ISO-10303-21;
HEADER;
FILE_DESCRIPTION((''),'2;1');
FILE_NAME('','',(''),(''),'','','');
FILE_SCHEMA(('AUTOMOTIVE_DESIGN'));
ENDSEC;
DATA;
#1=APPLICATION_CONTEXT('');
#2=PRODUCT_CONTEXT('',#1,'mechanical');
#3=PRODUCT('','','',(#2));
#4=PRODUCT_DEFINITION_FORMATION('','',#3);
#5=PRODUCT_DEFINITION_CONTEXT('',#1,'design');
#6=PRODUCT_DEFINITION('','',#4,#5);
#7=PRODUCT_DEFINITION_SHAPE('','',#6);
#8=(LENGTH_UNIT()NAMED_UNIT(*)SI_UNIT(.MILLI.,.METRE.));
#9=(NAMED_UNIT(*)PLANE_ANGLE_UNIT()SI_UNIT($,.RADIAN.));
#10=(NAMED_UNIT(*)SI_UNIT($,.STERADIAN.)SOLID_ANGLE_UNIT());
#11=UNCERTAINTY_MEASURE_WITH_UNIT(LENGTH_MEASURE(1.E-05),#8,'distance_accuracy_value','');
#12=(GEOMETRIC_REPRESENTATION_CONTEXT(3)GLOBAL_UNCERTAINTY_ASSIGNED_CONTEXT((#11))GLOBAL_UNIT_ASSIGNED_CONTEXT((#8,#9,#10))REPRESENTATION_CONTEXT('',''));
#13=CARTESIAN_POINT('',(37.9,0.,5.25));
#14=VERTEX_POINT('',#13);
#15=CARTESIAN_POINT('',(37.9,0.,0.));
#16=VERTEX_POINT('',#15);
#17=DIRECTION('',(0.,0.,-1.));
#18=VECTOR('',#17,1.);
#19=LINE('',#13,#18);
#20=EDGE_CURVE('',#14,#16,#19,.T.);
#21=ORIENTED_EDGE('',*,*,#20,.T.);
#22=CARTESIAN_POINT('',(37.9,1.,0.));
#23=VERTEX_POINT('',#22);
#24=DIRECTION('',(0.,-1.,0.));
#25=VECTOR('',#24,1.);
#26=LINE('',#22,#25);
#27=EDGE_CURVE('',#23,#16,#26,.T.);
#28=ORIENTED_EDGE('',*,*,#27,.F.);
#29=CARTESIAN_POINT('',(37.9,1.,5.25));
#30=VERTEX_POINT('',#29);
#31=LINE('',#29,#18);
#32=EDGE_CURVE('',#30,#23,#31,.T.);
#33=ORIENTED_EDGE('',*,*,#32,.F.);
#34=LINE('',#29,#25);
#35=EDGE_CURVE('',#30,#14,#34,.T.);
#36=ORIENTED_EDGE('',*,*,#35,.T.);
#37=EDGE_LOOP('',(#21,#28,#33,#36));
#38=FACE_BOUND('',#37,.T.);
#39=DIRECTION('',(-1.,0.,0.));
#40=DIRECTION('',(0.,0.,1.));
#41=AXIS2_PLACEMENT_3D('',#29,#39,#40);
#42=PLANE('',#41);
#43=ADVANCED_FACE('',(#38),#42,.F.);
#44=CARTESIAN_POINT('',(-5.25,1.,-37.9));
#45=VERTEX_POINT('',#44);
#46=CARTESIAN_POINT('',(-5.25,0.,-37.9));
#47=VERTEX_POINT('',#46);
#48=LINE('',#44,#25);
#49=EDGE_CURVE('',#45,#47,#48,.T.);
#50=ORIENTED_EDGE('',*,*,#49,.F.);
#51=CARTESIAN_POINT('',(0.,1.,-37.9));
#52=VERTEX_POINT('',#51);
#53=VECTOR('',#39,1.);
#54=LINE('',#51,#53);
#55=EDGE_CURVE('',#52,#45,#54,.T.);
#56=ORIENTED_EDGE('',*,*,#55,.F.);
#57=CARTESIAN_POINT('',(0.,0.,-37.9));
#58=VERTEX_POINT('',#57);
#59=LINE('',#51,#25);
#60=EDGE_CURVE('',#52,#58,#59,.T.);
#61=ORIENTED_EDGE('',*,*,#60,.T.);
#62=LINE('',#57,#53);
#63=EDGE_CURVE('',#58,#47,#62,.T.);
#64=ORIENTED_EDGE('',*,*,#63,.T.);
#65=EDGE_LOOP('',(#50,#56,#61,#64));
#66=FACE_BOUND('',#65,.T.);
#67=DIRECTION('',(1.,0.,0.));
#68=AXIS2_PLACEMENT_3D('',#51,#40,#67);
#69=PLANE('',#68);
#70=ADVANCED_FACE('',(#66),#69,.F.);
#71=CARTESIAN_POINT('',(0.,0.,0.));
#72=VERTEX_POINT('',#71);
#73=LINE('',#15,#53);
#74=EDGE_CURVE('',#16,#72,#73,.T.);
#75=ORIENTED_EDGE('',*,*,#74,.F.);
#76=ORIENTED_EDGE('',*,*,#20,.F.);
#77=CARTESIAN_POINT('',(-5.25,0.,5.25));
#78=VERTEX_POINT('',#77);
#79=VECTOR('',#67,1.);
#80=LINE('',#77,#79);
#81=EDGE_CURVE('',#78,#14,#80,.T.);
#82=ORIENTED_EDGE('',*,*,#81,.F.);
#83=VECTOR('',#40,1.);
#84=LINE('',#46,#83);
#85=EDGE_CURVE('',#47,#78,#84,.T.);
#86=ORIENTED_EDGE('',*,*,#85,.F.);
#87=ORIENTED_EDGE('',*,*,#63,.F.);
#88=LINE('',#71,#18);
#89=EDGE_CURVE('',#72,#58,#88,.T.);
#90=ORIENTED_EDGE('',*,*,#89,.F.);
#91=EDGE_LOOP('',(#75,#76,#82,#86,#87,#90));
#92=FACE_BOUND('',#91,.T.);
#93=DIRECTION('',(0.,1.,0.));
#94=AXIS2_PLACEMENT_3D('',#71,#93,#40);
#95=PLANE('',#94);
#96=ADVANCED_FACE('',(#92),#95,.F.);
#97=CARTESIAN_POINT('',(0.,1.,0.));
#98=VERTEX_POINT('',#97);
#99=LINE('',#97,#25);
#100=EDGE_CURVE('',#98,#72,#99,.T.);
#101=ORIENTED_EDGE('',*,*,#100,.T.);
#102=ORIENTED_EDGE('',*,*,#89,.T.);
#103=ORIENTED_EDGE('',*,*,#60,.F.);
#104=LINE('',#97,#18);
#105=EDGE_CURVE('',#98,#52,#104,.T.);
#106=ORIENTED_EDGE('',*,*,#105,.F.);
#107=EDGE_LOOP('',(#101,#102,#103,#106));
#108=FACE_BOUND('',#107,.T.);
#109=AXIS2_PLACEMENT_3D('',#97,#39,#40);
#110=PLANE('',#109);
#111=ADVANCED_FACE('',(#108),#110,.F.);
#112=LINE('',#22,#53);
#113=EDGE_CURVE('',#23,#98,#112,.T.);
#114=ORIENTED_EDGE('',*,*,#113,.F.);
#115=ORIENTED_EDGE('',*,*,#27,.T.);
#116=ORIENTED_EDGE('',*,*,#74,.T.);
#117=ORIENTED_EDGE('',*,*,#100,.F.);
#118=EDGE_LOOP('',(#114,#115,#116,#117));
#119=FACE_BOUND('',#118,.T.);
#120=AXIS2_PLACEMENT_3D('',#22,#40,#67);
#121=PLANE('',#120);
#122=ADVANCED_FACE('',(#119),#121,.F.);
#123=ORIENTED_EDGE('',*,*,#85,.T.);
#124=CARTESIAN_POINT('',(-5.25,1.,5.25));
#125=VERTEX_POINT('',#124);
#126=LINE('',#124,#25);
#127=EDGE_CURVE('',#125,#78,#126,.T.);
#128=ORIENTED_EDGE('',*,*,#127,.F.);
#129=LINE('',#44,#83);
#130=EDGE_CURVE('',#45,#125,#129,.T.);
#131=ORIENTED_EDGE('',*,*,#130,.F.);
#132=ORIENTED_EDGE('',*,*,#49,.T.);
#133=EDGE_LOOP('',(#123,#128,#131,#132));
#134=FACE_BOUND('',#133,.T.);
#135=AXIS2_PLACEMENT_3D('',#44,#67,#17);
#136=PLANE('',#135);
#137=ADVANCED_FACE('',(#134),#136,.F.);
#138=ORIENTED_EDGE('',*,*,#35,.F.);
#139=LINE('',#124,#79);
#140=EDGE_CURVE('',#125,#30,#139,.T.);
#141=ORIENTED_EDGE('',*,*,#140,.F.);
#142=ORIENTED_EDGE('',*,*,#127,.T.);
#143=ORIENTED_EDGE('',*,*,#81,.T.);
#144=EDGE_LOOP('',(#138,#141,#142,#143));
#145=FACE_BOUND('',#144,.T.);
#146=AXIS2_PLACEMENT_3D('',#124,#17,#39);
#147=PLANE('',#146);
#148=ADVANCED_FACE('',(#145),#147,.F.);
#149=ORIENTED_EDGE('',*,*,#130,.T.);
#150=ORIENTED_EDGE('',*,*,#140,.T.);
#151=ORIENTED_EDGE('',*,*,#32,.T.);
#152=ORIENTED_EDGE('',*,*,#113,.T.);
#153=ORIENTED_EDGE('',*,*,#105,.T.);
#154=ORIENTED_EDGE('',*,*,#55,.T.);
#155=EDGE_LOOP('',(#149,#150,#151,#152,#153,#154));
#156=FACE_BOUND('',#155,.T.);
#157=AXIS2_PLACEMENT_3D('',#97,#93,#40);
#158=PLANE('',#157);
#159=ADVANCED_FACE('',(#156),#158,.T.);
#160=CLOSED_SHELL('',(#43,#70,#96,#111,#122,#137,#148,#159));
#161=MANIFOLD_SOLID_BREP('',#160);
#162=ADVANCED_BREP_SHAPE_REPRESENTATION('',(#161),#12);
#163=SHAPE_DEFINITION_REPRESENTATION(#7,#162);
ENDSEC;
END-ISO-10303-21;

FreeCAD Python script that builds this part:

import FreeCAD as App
import Part
import Sketcher

doc = App.newDocument("Part")
body = doc.addObject("PartDesign::Body", "Body")

# Sketch on XZ plane
sketch1 = body.newObject("Sketcher::SketchObject", "Sketch")
sketch1.AttachmentSupport = (doc.getObject("XZ_Plane"), [""])
sketch1.MapMode = "FlatFace"
sketch1.addGeometry([
    Part.LineSegment(App.Vector(-5, -38, 0), App.Vector(-5, 5, 0)),  # 0
    Part.LineSegment(App.Vector(-5, 5, 0), App.Vector(38, 5, 0)),  # 1
    Part.LineSegment(App.Vector(38, 5, 0), App.Vector(38, 0, 0)),  # 2
    Part.LineSegment(App.Vector(38, 0, 0), App.Vector(0, 0, 0)),  # 3
    Part.LineSegment(App.Vector(0, 0, 0), App.Vector(0, -38, 0)),  # 4
    Part.LineSegment(App.Vector(0, -38, 0), App.Vector(-5, -38, 0)),  # 5
], False)
sketch1.addConstraint([
    Sketcher.Constraint("Coincident", 0, 2, 1, 1),
    Sketcher.Constraint("Coincident", 1, 2, 2, 1),
    Sketcher.Constraint("Coincident", 2, 2, 3, 1),
    Sketcher.Constraint("Coincident", 3, 2, 4, 1),
    Sketcher.Constraint("Coincident", 4, 2, 5, 1),
    Sketcher.Constraint("Coincident", 5, 2, 0, 1),
    Sketcher.Constraint("Vertical", 0),
    Sketcher.Constraint("Horizontal", 1),
    Sketcher.Constraint("Vertical", 2),
    Sketcher.Constraint("Horizontal", 3),
    Sketcher.Constraint("Vertical", 4),
    Sketcher.Constraint("Horizontal", 5),
    Sketcher.Constraint("Coincident", 3, 2, -1, 1),
    Sketcher.Constraint("Equal", 1, 0),
    Sketcher.Constraint("Equal", 5, 2),
    Sketcher.Constraint("DistanceX", 3, 2, 3, 1, 37.9),
    Sketcher.Constraint("DistanceX", 1, 1, 1, 2, 43.15),
])
pad1 = body.newObject("PartDesign::Pad", "Pad")
pad1.Profile = sketch1
pad1.Length = 1
pad1.Reversed = True

doc.recompute()
